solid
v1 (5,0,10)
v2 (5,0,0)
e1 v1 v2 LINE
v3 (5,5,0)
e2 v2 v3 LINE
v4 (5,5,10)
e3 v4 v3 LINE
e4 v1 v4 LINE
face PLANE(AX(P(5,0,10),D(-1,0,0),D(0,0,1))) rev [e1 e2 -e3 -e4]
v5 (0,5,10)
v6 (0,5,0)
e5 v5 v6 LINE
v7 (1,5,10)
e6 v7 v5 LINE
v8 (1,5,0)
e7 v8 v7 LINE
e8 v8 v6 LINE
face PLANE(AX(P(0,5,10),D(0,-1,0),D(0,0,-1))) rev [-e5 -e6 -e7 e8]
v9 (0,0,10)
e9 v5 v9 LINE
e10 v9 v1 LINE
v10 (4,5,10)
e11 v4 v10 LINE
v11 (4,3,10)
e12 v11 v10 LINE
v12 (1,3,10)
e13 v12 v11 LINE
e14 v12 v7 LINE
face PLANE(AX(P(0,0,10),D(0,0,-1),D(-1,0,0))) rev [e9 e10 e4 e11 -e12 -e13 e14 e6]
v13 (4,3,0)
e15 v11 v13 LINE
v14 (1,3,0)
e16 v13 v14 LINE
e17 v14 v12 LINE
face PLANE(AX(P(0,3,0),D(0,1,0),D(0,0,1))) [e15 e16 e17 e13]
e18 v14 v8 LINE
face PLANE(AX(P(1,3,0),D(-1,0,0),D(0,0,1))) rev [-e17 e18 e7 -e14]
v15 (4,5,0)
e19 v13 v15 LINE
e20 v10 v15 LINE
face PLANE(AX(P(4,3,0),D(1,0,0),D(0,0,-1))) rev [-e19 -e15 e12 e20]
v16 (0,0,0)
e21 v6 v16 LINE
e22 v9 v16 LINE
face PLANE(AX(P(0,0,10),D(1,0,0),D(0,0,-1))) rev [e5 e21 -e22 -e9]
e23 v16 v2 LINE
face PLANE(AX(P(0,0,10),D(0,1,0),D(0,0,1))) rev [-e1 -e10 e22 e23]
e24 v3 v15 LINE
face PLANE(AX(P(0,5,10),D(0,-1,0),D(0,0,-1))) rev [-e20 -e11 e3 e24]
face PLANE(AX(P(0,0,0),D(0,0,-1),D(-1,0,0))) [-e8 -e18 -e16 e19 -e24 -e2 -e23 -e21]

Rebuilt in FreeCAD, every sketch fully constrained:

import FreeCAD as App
import Part
import Sketcher
from FreeCAD import Vector


def add_polygon(sketch, points):
    """Adds a closed chain of lines whose ends are joined by coincident constraints."""
    first, n = sketch.GeometryCount, len(points)
    for a, b in zip(points, points[1:] + points[:1]):
        sketch.addGeometry(Part.LineSegment(App.Vector(*a, 0), App.Vector(*b, 0)), False)
    for i in range(n):
        sketch.addConstraint(Sketcher.Constraint("Coincident", first + i, 2, first + (i + 1) % n, 1))

doc = App.newDocument("Part")
params = doc.addObject("Spreadsheet::Sheet", "Params")
for row, (alias, value) in enumerate([
    ("sketch1_width", "5 mm"),
    ("pad1_length", "10 mm"),
    ("sketch2_width", "3 mm"),
    ("sketch2_height", "10 mm"),
    ("pocket1_length", "2 mm"),
], start=1):
    params.set(f"A{row}", alias)
    params.set(f"B{row}", "=" + value)
    params.setAlias(f"B{row}", alias)

body = doc.addObject("PartDesign::Body", "Body")

# Sketch on XY plane
sketch1 = body.newObject("Sketcher::SketchObject", "Sketch")
sketch1.AttachmentSupport = (doc.getObject("XY_Plane"), [""])
sketch1.MapMode = "FlatFace"
add_polygon(sketch1, [(0, 5), (0, 0), (5, 0), (5, 5)])  # lines 0-3
sketch1.addConstraint(Sketcher.Constraint("Vertical", 0))
sketch1.addConstraint(Sketcher.Constraint("Horizontal", 1))
sketch1.addConstraint(Sketcher.Constraint("Vertical", 2))
sketch1.addConstraint(Sketcher.Constraint("Horizontal", 3))
sketch1.addConstraint(Sketcher.Constraint("Coincident", 0, 2, -1, 1))
sketch1.addConstraint(Sketcher.Constraint("Equal", 3, 0))
sketch1.addConstraint(Sketcher.Constraint("DistanceX", 1, 1, 1, 2, 5.0))
sketch1.setExpression("Constraints[10]", "Params.sketch1_width")
pad1 = body.newObject("PartDesign::Pad", "Pad")
pad1.Profile = sketch1
pad1.setExpression("Length", "Params.pad1_length")

# Sketch on XZ plane
sketch2 = body.newObject("Sketcher::SketchObject", "Sketch001")
sketch2.AttachmentSupport = (doc.getObject("XZ_Plane"), [""])
sketch2.MapMode = "FlatFace"
sketch2.AttachmentOffset = App.Placement(Vector(0, 0, -5), App.Rotation())
add_polygon(sketch2, [(1, 0), (1, 10), (4, 10), (4, 0)])  # lines 0-3
sketch2.addConstraint(Sketcher.Constraint("Vertical", 0))
sketch2.addConstraint(Sketcher.Constraint("Horizontal", 1))
sketch2.addConstraint(Sketcher.Constraint("Vertical", 2))
sketch2.addConstraint(Sketcher.Constraint("Horizontal", 3))
sketch2.addConstraint(Sketcher.Constraint("PointOnObject", 2, 2, -1))
sketch2.addConstraint(Sketcher.Constraint("DistanceX", 1, 1, 1, 2, 3.0))
sketch2.addConstraint(Sketcher.Constraint("DistanceY", 0, 1, 0, 2, 10.0))
sketch2.addConstraint(Sketcher.Constraint("DistanceX", -1, 1, 0, 2, 1.0))
sketch2.setExpression("Constraints[9]", "Params.sketch2_width")
sketch2.setExpression("Constraints[10]", "Params.sketch2_height")
pocket1 = body.newObject("PartDesign::Pocket", "Pocket")
pocket1.Profile = sketch2
pocket1.setExpression("Length", "Params.pocket1_length")
pocket1.Reversed = True

doc.recompute()
